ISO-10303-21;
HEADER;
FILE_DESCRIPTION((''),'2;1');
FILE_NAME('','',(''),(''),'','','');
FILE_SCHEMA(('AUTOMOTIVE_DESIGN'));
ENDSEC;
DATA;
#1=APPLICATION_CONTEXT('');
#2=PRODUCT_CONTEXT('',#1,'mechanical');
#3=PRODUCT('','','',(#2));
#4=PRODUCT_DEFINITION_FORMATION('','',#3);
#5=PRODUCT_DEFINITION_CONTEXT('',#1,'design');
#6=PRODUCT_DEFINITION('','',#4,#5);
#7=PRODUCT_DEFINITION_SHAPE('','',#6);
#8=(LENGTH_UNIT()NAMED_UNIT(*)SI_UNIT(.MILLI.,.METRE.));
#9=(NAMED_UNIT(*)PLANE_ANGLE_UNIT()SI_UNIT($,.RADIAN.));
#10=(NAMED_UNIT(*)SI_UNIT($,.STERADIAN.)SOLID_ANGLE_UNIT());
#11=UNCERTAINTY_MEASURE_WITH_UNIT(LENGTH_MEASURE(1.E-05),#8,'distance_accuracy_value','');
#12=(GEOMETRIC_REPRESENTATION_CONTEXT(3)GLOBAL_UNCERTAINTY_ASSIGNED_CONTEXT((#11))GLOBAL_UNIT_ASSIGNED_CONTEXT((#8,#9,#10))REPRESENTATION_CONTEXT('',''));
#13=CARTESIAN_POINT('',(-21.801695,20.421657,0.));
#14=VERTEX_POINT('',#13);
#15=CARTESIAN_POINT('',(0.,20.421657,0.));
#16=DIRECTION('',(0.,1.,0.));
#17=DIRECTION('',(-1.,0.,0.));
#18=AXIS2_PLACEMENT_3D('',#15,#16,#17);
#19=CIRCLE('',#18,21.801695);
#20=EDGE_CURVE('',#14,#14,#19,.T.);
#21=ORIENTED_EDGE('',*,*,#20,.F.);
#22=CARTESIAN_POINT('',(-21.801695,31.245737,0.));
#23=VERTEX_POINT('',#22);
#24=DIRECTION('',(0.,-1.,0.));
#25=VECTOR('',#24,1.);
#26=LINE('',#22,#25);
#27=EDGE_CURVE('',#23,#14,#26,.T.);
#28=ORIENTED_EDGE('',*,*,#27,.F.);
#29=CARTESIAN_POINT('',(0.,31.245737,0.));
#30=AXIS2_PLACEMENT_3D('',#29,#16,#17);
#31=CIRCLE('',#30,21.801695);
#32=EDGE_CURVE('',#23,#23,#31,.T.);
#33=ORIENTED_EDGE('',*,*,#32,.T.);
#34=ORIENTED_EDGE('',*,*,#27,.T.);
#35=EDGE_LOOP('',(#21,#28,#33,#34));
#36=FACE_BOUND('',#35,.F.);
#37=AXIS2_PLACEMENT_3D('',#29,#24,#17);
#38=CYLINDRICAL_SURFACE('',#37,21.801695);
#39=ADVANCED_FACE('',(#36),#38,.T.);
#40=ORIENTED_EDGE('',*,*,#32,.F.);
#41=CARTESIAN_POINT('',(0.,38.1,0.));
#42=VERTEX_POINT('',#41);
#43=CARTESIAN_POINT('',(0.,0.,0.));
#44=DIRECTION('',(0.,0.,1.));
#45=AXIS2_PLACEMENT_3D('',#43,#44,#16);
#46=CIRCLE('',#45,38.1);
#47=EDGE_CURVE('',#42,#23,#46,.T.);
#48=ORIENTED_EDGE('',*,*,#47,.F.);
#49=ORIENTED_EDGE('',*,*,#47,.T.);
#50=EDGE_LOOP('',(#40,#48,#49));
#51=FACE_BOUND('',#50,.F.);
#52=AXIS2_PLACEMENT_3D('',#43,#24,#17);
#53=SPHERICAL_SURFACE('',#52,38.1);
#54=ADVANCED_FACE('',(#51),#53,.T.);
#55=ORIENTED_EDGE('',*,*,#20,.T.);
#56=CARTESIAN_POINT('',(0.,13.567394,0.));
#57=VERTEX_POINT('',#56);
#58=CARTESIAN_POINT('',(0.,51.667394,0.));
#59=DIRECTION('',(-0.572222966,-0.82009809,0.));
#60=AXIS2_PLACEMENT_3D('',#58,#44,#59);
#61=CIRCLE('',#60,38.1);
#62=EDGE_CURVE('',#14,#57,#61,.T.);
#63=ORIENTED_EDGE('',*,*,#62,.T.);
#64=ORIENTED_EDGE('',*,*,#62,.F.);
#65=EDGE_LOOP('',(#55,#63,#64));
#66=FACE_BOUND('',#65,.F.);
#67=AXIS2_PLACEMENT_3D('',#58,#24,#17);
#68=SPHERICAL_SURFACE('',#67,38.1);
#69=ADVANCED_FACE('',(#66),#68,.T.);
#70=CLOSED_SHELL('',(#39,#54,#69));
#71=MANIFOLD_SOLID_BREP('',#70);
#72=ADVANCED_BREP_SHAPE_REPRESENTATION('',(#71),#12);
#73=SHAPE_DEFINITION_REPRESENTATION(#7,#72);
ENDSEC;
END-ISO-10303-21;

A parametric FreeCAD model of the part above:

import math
import FreeCAD as App
import Part
import Sketcher
Q = App.Units.Quantity

doc = App.newDocument("Part")
body = doc.addObject("PartDesign::Body", "Body")

sketch1 = doc.addObject("Sketcher::SketchObject", "Sketch")
body.addObject(sketch1)
sketch1.AttachmentSupport = (doc.XY_Plane, [""])
sketch1.MapMode = "FlatFace"
sketch1.addGeometry([
    Part.ArcOfCircle(Part.Circle(App.Vector(0, 0, 0), App.Vector(0, 0, 1), 38.1), math.radians(90), math.radians(124.905386)),
    Part.LineSegment(App.Vector(-21.801695, 31.245737, 0), App.Vector(-21.801695, 20.421657, 0)),
    Part.ArcOfCircle(Part.Circle(App.Vector(0, 51.667394, 0), App.Vector(0, 0, 1), 38.1), math.radians(-124.905386), math.radians(-90)),
    Part.LineSegment(App.Vector(0, 13.567394, 0), App.Vector(0, 38.1, 0)),
], False)
sketch1.addConstraint([
    Sketcher.Constraint("Coincident", 0, 2, 1, 1),
    Sketcher.Constraint("Coincident", 1, 2, 2, 1),
    Sketcher.Constraint("Coincident", 2, 2, 3, 1),
    Sketcher.Constraint("Coincident", 3, 2, 0, 1),
    Sketcher.Constraint("Vertical", 1),
    Sketcher.Constraint("Vertical", 3),
    Sketcher.Constraint("Coincident", 0, 3, -1, 1),
    Sketcher.Constraint("Equal", 0, 2),
    Sketcher.Constraint("PointOnObject", 2, 3, -2),
    Sketcher.Constraint("PointOnObject", 2, 2, -2),
    Sketcher.Constraint("Radius", 0, Q("1.5 in")),
    Sketcher.Constraint("DistanceY", 1, 2, 1, 1, Q("10.82408 mm")),
    Sketcher.Constraint("DistanceY", 3, 1, 3, 2, Q("24.532606 mm")),
])
revolution = doc.addObject("PartDesign::Revolution", "Revolution")
body.addObject(revolution)
revolution.Profile = sketch1
revolution.ReferenceAxis = (sketch1, ["V_Axis"])
revolution.Angle = 360

doc.recompute()
